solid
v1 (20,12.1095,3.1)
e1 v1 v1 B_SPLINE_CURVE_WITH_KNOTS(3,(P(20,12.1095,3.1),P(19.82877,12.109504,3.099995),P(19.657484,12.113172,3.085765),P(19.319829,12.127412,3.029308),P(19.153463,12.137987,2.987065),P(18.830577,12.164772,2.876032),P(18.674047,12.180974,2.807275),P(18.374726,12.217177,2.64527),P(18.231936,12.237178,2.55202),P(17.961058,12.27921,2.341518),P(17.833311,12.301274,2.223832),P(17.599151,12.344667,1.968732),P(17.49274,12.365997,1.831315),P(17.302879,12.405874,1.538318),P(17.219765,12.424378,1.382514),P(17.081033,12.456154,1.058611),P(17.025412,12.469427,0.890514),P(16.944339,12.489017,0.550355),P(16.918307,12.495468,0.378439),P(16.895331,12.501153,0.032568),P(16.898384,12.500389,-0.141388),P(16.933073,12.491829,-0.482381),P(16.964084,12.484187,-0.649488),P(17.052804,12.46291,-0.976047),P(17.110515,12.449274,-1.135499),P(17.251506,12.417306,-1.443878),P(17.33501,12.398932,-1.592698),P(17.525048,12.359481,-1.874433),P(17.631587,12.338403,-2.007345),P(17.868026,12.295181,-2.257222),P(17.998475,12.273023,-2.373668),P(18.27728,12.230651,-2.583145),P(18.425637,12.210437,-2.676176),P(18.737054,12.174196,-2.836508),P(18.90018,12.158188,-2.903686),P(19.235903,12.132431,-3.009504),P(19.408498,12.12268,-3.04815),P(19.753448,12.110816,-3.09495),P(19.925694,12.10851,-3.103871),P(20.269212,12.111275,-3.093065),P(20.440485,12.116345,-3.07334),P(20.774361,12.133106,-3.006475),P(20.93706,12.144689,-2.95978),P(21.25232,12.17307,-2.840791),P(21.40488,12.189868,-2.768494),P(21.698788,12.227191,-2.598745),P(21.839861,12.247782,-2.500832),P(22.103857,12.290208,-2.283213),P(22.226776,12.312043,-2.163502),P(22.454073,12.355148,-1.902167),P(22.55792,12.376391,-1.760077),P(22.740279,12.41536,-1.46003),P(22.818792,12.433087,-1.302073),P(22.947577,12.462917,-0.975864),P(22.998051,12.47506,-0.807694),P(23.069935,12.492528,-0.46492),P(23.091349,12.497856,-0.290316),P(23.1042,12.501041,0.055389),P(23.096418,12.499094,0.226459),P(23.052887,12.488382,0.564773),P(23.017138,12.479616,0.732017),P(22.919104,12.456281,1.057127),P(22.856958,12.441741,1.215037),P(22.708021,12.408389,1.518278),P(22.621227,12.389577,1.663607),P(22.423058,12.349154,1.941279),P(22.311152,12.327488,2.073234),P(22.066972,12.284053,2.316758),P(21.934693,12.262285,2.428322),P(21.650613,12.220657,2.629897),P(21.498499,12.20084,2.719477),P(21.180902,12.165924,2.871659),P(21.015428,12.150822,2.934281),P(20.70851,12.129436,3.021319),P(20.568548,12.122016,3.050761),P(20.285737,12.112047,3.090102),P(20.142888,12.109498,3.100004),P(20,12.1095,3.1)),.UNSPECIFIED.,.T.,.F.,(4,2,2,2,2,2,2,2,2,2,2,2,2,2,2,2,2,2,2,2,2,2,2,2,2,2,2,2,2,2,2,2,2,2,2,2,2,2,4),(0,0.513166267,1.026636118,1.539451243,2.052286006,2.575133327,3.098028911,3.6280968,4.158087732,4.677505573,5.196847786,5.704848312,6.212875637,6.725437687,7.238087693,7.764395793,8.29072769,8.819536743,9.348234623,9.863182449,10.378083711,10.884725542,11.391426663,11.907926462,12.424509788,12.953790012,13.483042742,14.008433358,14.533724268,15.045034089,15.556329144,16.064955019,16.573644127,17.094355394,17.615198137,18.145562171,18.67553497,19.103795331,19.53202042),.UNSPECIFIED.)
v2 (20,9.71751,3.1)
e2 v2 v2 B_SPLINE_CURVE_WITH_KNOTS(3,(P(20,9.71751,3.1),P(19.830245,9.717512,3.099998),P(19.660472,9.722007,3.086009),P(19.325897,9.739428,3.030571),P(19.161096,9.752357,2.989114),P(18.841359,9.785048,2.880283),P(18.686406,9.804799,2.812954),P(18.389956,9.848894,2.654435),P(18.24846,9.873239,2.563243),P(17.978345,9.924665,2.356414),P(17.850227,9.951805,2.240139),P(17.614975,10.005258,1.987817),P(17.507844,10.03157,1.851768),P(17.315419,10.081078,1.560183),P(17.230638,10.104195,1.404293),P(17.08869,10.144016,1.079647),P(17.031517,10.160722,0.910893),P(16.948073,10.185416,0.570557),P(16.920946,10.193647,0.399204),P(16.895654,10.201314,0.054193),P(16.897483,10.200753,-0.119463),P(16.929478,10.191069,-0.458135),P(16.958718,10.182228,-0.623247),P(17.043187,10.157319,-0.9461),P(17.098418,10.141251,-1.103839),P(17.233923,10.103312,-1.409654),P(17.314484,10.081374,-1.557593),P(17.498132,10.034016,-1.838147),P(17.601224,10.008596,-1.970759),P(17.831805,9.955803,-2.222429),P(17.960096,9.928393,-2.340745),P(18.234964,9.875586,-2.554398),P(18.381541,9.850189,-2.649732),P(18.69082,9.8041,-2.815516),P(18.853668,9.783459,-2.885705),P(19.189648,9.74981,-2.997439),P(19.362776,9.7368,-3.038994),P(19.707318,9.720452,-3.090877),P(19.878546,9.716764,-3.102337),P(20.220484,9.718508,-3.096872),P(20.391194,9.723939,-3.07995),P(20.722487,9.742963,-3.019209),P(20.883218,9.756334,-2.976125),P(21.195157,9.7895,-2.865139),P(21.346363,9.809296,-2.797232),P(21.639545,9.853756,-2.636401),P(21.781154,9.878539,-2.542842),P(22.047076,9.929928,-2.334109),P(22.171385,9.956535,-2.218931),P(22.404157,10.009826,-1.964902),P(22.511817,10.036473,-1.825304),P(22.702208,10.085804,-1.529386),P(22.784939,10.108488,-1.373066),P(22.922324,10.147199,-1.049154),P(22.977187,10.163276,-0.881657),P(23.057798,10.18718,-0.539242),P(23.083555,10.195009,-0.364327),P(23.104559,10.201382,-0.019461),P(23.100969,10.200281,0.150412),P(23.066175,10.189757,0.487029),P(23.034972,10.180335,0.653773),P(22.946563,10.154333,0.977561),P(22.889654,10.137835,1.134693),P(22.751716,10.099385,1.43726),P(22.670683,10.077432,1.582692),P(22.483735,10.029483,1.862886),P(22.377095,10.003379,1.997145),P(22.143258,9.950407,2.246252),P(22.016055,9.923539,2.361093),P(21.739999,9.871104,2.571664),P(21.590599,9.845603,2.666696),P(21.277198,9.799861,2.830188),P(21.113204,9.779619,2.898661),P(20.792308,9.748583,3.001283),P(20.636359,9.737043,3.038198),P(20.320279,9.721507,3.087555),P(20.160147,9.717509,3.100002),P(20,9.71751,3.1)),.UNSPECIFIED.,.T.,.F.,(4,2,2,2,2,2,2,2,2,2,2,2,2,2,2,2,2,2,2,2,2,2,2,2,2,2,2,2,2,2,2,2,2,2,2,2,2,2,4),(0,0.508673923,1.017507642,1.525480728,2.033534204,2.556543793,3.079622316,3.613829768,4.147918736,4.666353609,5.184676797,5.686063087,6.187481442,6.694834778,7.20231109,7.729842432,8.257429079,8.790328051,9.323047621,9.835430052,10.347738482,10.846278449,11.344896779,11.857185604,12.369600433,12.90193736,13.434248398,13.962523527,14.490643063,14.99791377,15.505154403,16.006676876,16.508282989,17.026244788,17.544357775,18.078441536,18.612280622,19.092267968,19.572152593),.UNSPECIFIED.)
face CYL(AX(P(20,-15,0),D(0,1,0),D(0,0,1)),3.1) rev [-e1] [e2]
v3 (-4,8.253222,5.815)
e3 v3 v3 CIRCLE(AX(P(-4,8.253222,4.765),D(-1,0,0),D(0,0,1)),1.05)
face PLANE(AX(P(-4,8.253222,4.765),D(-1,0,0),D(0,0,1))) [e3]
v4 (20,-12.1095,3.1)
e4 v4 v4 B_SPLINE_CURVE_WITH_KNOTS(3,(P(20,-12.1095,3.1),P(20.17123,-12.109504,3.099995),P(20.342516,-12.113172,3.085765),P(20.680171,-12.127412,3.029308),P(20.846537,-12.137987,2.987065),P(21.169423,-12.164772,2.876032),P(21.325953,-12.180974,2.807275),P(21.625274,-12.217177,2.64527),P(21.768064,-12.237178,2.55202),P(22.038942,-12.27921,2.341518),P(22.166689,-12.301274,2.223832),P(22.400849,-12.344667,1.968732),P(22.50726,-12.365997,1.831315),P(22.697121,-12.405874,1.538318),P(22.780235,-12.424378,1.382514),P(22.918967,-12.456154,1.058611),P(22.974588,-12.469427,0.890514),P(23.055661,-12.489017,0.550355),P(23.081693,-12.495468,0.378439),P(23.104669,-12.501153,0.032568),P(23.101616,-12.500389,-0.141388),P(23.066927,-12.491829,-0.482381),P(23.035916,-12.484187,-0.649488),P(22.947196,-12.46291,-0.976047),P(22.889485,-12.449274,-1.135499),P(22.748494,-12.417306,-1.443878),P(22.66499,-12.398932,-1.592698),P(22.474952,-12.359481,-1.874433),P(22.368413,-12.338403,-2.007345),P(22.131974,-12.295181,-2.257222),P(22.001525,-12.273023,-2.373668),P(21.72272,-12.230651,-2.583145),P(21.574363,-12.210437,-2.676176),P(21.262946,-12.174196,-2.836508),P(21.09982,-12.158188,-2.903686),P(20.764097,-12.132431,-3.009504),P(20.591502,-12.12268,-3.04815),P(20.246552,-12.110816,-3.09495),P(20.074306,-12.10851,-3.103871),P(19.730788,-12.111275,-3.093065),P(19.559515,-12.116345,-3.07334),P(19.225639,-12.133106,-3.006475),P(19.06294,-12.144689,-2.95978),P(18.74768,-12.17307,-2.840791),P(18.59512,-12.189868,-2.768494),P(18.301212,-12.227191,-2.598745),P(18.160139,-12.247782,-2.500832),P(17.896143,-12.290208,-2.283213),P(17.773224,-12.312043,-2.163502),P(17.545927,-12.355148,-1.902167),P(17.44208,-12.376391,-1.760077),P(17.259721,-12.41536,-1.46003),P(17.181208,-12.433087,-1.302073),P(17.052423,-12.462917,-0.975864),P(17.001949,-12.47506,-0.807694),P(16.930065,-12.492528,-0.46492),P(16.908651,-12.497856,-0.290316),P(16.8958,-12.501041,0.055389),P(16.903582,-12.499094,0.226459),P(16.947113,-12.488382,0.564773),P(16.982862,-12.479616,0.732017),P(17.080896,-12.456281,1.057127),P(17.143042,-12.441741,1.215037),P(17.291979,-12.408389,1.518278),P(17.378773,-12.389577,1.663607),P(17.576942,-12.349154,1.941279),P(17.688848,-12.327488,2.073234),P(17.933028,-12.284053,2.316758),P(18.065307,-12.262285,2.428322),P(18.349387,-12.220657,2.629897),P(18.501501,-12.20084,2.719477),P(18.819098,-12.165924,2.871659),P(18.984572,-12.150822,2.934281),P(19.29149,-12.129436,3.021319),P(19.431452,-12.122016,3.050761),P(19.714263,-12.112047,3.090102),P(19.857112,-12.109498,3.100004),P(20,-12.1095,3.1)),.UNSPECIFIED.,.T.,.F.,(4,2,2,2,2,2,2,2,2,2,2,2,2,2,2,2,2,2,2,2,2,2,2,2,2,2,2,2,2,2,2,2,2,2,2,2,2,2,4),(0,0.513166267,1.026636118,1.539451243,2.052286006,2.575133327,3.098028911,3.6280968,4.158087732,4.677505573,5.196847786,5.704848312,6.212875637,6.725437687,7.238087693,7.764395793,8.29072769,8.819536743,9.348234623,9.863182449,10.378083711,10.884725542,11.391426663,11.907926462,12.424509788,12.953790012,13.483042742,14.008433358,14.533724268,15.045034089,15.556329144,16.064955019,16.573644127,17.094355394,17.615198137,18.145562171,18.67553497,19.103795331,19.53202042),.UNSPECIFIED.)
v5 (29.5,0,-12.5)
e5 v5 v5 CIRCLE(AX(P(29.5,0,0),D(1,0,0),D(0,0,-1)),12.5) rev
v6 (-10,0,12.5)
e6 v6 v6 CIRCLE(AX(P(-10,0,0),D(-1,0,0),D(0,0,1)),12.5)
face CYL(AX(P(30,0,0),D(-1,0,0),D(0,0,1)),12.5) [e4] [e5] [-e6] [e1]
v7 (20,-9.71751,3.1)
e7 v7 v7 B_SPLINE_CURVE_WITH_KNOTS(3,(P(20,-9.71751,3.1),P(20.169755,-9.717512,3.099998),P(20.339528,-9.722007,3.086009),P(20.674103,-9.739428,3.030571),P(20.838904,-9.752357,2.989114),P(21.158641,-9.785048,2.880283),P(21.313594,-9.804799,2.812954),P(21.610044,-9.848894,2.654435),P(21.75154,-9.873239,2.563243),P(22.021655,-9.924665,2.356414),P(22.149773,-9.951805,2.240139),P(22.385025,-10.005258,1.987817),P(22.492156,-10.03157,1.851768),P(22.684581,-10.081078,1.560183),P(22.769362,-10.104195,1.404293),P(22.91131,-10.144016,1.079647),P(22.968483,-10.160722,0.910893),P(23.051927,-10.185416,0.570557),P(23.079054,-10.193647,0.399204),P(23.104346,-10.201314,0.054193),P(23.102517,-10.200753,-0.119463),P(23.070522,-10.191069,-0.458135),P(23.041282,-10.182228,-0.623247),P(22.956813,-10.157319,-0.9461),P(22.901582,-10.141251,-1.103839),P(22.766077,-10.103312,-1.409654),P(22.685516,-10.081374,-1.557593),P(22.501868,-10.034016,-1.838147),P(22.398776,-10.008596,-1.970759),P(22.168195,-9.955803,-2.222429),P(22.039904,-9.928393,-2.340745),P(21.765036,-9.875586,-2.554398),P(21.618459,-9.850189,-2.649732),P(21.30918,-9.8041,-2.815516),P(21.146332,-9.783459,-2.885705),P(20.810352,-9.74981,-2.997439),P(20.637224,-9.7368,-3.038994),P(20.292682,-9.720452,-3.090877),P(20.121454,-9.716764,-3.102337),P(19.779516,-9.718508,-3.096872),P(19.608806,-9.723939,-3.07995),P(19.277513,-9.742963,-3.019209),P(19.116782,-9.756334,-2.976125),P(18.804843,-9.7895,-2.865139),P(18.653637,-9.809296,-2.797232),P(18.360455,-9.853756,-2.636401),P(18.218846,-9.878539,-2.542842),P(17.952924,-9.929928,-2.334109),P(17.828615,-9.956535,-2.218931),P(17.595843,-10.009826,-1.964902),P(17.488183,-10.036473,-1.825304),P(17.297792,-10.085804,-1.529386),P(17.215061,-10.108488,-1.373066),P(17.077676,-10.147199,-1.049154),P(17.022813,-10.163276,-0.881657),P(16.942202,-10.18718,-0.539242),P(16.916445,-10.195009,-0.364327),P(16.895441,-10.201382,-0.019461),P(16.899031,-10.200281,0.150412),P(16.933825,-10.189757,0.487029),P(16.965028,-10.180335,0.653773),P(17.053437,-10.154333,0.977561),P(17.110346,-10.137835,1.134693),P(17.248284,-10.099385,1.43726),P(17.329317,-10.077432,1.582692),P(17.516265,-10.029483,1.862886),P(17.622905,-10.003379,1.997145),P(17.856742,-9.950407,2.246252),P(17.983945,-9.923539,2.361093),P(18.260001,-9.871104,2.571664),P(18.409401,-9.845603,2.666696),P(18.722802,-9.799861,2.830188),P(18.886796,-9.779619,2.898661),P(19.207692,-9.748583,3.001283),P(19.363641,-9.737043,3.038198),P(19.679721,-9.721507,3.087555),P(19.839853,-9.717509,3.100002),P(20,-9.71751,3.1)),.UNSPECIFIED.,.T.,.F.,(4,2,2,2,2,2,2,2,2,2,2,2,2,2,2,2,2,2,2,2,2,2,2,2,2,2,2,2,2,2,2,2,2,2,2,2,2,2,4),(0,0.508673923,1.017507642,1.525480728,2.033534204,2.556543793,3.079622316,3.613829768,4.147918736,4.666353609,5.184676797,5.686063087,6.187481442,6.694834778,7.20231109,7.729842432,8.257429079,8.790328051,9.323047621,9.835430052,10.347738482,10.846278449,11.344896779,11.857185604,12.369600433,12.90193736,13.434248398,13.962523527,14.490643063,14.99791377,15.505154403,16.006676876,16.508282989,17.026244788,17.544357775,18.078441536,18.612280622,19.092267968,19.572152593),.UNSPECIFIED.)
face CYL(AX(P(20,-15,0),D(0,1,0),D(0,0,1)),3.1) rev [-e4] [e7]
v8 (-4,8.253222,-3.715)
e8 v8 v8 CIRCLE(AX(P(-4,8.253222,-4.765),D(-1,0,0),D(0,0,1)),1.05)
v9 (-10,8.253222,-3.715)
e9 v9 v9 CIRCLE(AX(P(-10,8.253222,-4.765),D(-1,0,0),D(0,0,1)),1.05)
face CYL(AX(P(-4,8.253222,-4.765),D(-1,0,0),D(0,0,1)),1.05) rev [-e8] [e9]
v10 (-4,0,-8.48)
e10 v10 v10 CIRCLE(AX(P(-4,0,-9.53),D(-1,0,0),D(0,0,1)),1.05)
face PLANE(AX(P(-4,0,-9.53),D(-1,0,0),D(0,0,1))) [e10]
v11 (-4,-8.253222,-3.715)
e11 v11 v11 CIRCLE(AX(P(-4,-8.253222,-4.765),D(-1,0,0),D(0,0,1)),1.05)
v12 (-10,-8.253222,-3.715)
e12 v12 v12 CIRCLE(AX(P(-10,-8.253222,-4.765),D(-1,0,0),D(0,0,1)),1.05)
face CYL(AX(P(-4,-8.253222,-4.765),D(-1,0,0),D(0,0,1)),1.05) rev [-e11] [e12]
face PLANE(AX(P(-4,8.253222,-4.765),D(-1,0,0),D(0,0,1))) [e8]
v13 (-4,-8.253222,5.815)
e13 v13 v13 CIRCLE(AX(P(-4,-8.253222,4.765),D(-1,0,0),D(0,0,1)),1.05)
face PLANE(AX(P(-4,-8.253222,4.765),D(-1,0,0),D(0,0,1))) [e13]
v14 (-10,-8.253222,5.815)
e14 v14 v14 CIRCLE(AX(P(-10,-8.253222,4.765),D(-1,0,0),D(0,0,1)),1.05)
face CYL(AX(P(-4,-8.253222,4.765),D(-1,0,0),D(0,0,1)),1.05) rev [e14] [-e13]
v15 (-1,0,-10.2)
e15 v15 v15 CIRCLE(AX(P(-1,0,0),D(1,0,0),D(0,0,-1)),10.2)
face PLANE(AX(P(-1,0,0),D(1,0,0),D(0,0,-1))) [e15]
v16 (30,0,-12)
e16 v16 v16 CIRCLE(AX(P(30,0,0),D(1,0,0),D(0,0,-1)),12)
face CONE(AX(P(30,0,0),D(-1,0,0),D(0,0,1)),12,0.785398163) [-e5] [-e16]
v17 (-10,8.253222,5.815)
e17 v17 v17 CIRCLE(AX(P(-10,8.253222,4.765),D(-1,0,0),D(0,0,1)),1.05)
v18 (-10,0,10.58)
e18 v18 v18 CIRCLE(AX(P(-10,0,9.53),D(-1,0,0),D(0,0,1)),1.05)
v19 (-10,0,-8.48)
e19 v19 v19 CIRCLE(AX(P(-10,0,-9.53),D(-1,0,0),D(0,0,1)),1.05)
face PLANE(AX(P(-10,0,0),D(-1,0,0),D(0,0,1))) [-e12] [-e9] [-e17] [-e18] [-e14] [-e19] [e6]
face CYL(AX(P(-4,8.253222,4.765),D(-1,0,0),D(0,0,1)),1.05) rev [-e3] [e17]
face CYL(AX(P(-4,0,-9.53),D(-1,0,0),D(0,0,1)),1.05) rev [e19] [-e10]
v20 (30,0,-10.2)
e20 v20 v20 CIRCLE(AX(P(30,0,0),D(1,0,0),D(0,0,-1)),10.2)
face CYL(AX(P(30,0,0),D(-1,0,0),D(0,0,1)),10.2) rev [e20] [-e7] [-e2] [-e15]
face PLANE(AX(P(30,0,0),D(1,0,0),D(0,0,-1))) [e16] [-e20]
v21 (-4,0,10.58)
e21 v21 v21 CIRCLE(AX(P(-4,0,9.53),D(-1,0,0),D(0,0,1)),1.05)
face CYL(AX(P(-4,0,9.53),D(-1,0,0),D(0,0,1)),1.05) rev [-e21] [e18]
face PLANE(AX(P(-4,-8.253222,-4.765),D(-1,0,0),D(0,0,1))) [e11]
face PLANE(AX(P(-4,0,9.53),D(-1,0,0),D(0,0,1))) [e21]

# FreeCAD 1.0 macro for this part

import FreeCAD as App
import Part
import Sketcher
Q = App.Units.Quantity


def edges_at(feature, points):
    """Names of the edges that pass closest to the given points."""
    edges = feature.Shape.Edges
    near = lambda p: min(range(len(edges)), key=lambda i: edges[i].distToShape(Part.Vertex(*p))[0])
    return sorted({f"Edge{near(p) + 1}" for p in points})

doc = App.newDocument("Part")
body = doc.addObject("PartDesign::Body", "Body")

sketch1 = body.newObject("Sketcher::SketchObject", "Sketch")
sketch1.AttachmentSupport = (doc.getObject("YZ_Plane"), [""])
sketch1.MapMode = "FlatFace"
sketch1.addGeometry(Part.Circle(App.Vector(0, 0, 0), App.Vector(0, 0, 1), 12.5), False)
sketch1.addGeometry(Part.Circle(App.Vector(0, 0, 0), App.Vector(0, 0, 1), 10.2), False)
sketch1.addConstraint(Sketcher.Constraint("Coincident", 0, 3, -1, 1))
sketch1.addConstraint(Sketcher.Constraint("Coincident", 1, 3, -1, 1))
sketch1.addConstraint(Sketcher.Constraint("Diameter", 0, Q("25 mm")))
sketch1.addConstraint(Sketcher.Constraint("Diameter", 1, Q("20.4 mm")))
pad1 = body.newObject("PartDesign::Pad", "Pad")
pad1.Profile = sketch1
pad1.Length = 30

sketch2 = body.newObject("Sketcher::SketchObject", "Sketch001")
sketch2.AttachmentSupport = (doc.getObject("YZ_Plane"), [""])
sketch2.MapMode = "FlatFace"
sketch2.AttachmentOffset = App.Placement(App.Vector(0, 0, -10), App.Rotation())
sketch2.addGeometry(Part.Circle(App.Vector(0, 0, 0), App.Vector(0, 0, 1), 12.5), False)
sketch2.addConstraint(Sketcher.Constraint("Coincident", 0, 3, -1, 1))
sketch2.addConstraint(Sketcher.Constraint("Diameter", 0, Q("25 mm")))
pad2 = body.newObject("PartDesign::Pad", "Pad001")
pad2.Profile = sketch2
pad2.Length = 10

sketch3 = body.newObject("Sketcher::SketchObject", "Sketch002")
sketch3.AttachmentSupport = (doc.getObject("XZ_Plane"), [""])
sketch3.MapMode = "FlatFace"
sketch3.addGeometry(Part.Circle(App.Vector(20, 0, 0), App.Vector(0, 0, 1), 3.1), False)
sketch3.addConstraint(Sketcher.Constraint("PointOnObject", 0, 3, -1))
sketch3.addConstraint(Sketcher.Constraint("Diameter", 0, Q("6.2 mm")))
sketch3.addConstraint(Sketcher.Constraint("DistanceX", -1, 1, 0, 3, Q("20 mm")))
pocket1 = body.newObject("PartDesign::Pocket", "Pocket")
pocket1.Profile = sketch3
pocket1.Length = 30
pocket1.Midplane = True
doc.recompute()

chamfer = body.newObject("PartDesign::Chamfer", "Chamfer")
chamfer.Base = (pocket1, edges_at(pocket1, [(30, 0, 12.5)]))
chamfer.Size = 0.5

sketch4 = body.newObject("Sketcher::SketchObject", "Sketch003")
sketch4.AttachmentSupport = (doc.getObject("YZ_Plane"), [""])
sketch4.MapMode = "FlatFace"
sketch4.AttachmentOffset = App.Placement(App.Vector(0, 0, -1), App.Rotation())
sketch4.addGeometry(Part.Circle(App.Vector(0, 0, 0), App.Vector(0, 0, 1), 10.2), False)
sketch4.addConstraint(Sketcher.Constraint("Coincident", 0, 3, -1, 1))
sketch4.addConstraint(Sketcher.Constraint("Diameter", 0, Q("20.4 mm")))
pocket2 = body.newObject("PartDesign::Pocket", "Pocket001")
pocket2.Profile = sketch4
pocket2.Length = 1
pocket2.Reversed = True

sketch5 = body.newObject("Sketcher::SketchObject", "Sketch004")
sketch5.AttachmentSupport = (doc.getObject("YZ_Plane"), [""])
sketch5.MapMode = "FlatFace"
sketch5.AttachmentOffset = App.Placement(App.Vector(0, 0, -10), App.Rotation())
sketch5.addGeometry(Part.Circle(App.Vector(0, 9.53, 0), App.Vector(0, 0, 1), 1.05), False)
sketch5.addGeometry(Part.Circle(App.Vector(-8.253222, 4.765, 0), App.Vector(0, 0, 1), 1.05), False)
sketch5.addGeometry(Part.Circle(App.Vector(-8.253222, -4.765, 0), App.Vector(0, 0, 1), 1.05), False)
sketch5.addGeometry(Part.Circle(App.Vector(0, -9.53, 0), App.Vector(0, 0, 1), 1.05), False)
sketch5.addGeometry(Part.Circle(App.Vector(8.253222, -4.765, 0), App.Vector(0, 0, 1), 1.05), False)
sketch5.addGeometry(Part.Circle(App.Vector(8.253222, 4.765, 0), App.Vector(0, 0, 1), 1.05), False)
sketch5.addConstraint(Sketcher.Constraint("Equal", 0, 1))
sketch5.addConstraint(Sketcher.Constraint("Equal", 1, 2))
sketch5.addConstraint(Sketcher.Constraint("Equal", 2, 3))
sketch5.addConstraint(Sketcher.Constraint("Equal", 3, 4))
sketch5.addConstraint(Sketcher.Constraint("Equal", 4, 5))
sketch5.addConstraint(Sketcher.Constraint("Symmetric", 0, 3, 3, 3, -1, 1))
sketch5.addConstraint(Sketcher.Constraint("Symmetric", 1, 3, 4, 3, -1, 1))
sketch5.addConstraint(Sketcher.Constraint("Symmetric", 2, 3, 5, 3, -1, 1))
sketch5.addConstraint(Sketcher.Constraint("Symmetric", 2, 3, 4, 3, -2))
sketch5.addConstraint(Sketcher.Constraint("PointOnObject", 0, 3, -2))
sketch5.addConstraint(Sketcher.Constraint("Diameter", 0, Q("2.1 mm")))
sketch5.addConstraint(Sketcher.Constraint("DistanceY", -1, 1, 0, 3, Q("9.53 mm")))
sketch5.addConstraint(Sketcher.Constraint("DistanceY", 2, 3, 1, 3, Q("9.53 mm")))
sketch5.addConstraint(Sketcher.Constraint("DistanceX", 1, 3, -1, 1, Q("8.253222 mm")))
pocket3 = body.newObject("PartDesign::Pocket", "Pocket002")
pocket3.Profile = sketch5
pocket3.Length = 6
pocket3.Reversed = True

doc.recompute()
